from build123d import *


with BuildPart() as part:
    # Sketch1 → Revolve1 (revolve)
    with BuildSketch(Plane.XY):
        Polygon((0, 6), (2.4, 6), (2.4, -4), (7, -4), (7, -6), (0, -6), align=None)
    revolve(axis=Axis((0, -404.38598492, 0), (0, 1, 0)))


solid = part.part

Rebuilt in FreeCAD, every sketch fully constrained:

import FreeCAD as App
import Part
import Sketcher
Q = App.Units.Quantity

doc = App.newDocument("Part")
body = doc.addObject("PartDesign::Body", "Body")

# Sketch on XY plane
sketch1 = body.newObject("Sketcher::SketchObject", "Sketch")
sketch1.AttachmentSupport = (doc.getObject("XY_Plane"), [""])
sketch1.MapMode = "FlatFace"
sketch1.addGeometry([
    Part.LineSegment(App.Vector(2.4, 6, 0), App.Vector(0, 6, 0)),  # 0
    Part.LineSegment(App.Vector(0, 6, 0), App.Vector(0, -6, 0)),  # 1
    Part.LineSegment(App.Vector(0, -6, 0), App.Vector(7, -6, 0)),  # 2
    Part.LineSegment(App.Vector(7, -6, 0), App.Vector(7, -4, 0)),  # 3
    Part.LineSegment(App.Vector(7, -4, 0), App.Vector(2.4, -4, 0)),  # 4
    Part.LineSegment(App.Vector(2.4, -4, 0), App.Vector(2.4, 6, 0)),  # 5
], False)
sketch1.addConstraint([
    Sketcher.Constraint("Coincident", 0, 2, 1, 1),
    Sketcher.Constraint("Coincident", 1, 2, 2, 1),
    Sketcher.Constraint("Coincident", 2, 2, 3, 1),
    Sketcher.Constraint("Coincident", 3, 2, 4, 1),
    Sketcher.Constraint("Coincident", 4, 2, 5, 1),
    Sketcher.Constraint("Coincident", 5, 2, 0, 1),
    Sketcher.Constraint("Horizontal", 0),
    Sketcher.Constraint("Vertical", 1),
    Sketcher.Constraint("Horizontal", 2),
    Sketcher.Constraint("Vertical", 3),
    Sketcher.Constraint("Horizontal", 4),
    Sketcher.Constraint("Vertical", 5),
    Sketcher.Constraint("Symmetric", 0, 2, 1, 2, -1, 1),
    Sketcher.Constraint("DistanceX", 2, 1, 2, 2, Q("7 mm")),
    Sketcher.Constraint("DistanceY", 1, 2, 1, 1, Q("12 mm")),
    Sketcher.Constraint("DistanceY", 3, 1, 3, 2, Q("2 mm")),
    Sketcher.Constraint("DistanceX", 0, 2, 0, 1, Q("2.4 mm")),
])
revolution = body.newObject("PartDesign::Revolution", "Revolution")
revolution.Profile = sketch1
revolution.ReferenceAxis = (sketch1, ["V_Axis"])
revolution.Angle = 360

doc.recompute()
